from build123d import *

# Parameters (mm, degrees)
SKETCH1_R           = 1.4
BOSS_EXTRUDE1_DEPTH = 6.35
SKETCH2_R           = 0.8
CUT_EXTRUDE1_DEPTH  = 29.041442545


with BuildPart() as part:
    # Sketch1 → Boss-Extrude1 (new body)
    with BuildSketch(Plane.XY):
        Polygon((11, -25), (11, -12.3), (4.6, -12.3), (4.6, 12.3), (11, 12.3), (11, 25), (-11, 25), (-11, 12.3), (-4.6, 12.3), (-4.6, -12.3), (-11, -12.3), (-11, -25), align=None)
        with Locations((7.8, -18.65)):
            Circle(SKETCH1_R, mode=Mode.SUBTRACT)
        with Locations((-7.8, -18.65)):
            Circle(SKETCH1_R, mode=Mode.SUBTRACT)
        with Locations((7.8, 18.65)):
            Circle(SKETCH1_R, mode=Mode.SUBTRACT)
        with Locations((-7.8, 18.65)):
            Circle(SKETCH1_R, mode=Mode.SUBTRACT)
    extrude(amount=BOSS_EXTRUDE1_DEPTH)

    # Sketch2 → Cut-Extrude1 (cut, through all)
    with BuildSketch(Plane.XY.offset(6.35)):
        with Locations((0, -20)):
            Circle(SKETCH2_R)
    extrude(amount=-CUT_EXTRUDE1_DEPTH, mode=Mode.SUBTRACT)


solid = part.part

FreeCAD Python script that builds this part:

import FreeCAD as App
import Part
import Sketcher


def add_polygon(sketch, points):
    """Adds a closed chain of lines whose ends are joined by coincident constraints."""
    first, n = sketch.GeometryCount, len(points)
    for a, b in zip(points, points[1:] + points[:1]):
        sketch.addGeometry(Part.LineSegment(App.Vector(*a, 0), App.Vector(*b, 0)), False)
    for i in range(n):
        sketch.addConstraint(Sketcher.Constraint("Coincident", first + i, 2, first + (i + 1) % n, 1))

doc = App.newDocument("Part")
body = doc.addObject("PartDesign::Body", "Body")

sketch1 = doc.addObject("Sketcher::SketchObject", "Sketch")
body.addObject(sketch1)
sketch1.AttachmentSupport = (doc.XY_Plane, [""])
sketch1.MapMode = "FlatFace"
add_polygon(sketch1, [(11, -25), (11, -12.3), (4.6, -12.3), (4.6, 12.3), (11, 12.3), (11, 25), (-11, 25), (-11, 12.3), (-4.6, 12.3), (-4.6, -12.3), (-11, -12.3), (-11, -25)])
sketch1.addGeometry(Part.Circle(App.Vector(-7.8, -18.6, 0), App.Vector(0, 0, 1), 1.4), False)
sketch1.addGeometry(Part.Circle(App.Vector(7.8, -18.6, 0), App.Vector(0, 0, 1), 1.4), False)
sketch1.addGeometry(Part.Circle(App.Vector(-7.8, 18.6, 0), App.Vector(0, 0, 1), 1.4), False)
sketch1.addGeometry(Part.Circle(App.Vector(7.8, 18.6, 0), App.Vector(0, 0, 1), 1.4), False)
sketch1.addConstraint([
    Sketcher.Constraint("Vertical", 0),
    Sketcher.Constraint("Horizontal", 1),
    Sketcher.Constraint("Vertical", 2),
    Sketcher.Constraint("Horizontal", 3),
    Sketcher.Constraint("Vertical", 4),
    Sketcher.Constraint("Horizontal", 5),
    Sketcher.Constraint("Vertical", 6),
    Sketcher.Constraint("Horizontal", 7),
    Sketcher.Constraint("Vertical", 8),
    Sketcher.Constraint("Horizontal", 9),
    Sketcher.Constraint("Vertical", 10),
    Sketcher.Constraint("Horizontal", 11),
    Sketcher.Constraint("Equal", 12, 13),
    Sketcher.Constraint("Equal", 13, 14),
    Sketcher.Constraint("Equal", 14, 15),
    Sketcher.Constraint("Symmetric", 13, 3, 14, 3, -1, 1),
    Sketcher.Constraint("Symmetric", 12, 3, 15, 3, -1, 1),
    Sketcher.Constraint("Symmetric", 0, 2, 6, 2, -1, 1),
    Sketcher.Constraint("Symmetric", 2, 2, 8, 2, -1, 1),
    Sketcher.Constraint("Symmetric", 4, 2, 10, 2, -1, 1),
    Sketcher.Constraint("Symmetric", 12, 3, 13, 3, -2),
    Sketcher.Constraint("Symmetric", 3, 2, 6, 2, -2),
    Sketcher.Constraint("Diameter", 12, 2.8),
    Sketcher.Constraint("DistanceX", 5, 2, 5, 1, 22.0),
    Sketcher.Constraint("DistanceX", 1, 2, 1, 1, 6.4),
    Sketcher.Constraint("DistanceY", 0, 1, 0, 2, 12.7),
    Sketcher.Constraint("DistanceY", 2, 1, 2, 2, 24.6),
    Sketcher.Constraint("DistanceX", 12, 3, -1, 1, 7.8),
    Sketcher.Constraint("DistanceY", 12, 3, 14, 3, 37.3),
])
pad1 = doc.addObject("PartDesign::Pad", "Pad")
body.addObject(pad1)
pad1.Profile = sketch1
pad1.Length = 6.35

sketch2 = doc.addObject("Sketcher::SketchObject", "Sketch001")
body.addObject(sketch2)
sketch2.AttachmentSupport = (doc.XY_Plane, [""])
sketch2.MapMode = "FlatFace"
sketch2.AttachmentOffset = App.Placement(App.Vector(0, 0, 6.35), App.Rotation())
sketch2.addGeometry(Part.Circle(App.Vector(0, -20, 0), App.Vector(0, 0, 1), 0.8), False)
sketch2.addConstraint([
    Sketcher.Constraint("PointOnObject", 0, 3, -2),
    Sketcher.Constraint("Diameter", 0, 1.6),
    Sketcher.Constraint("DistanceY", 0, 3, -1, 1, 20.0),
])
pocket1 = doc.addObject("PartDesign::Pocket", "Pocket")
body.addObject(pocket1)
pocket1.Profile = sketch2
pocket1.Type = "ThroughAll"

doc.recompute()
